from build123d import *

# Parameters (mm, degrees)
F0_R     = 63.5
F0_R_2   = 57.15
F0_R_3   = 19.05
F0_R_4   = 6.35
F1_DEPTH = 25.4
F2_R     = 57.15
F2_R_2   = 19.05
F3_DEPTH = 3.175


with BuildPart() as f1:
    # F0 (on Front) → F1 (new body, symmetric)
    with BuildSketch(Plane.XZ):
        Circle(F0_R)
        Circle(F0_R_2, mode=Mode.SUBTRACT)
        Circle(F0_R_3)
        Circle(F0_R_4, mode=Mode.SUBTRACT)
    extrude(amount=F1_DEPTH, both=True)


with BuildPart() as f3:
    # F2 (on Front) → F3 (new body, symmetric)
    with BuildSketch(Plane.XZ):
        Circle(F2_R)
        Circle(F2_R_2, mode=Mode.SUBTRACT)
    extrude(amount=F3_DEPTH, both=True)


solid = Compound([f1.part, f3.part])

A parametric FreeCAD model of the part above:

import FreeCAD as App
import Part
import Sketcher
from FreeCAD import Vector
Q = App.Units.Quantity

doc = App.newDocument("Part")
body = doc.addObject("PartDesign::Body", "Body")
body.AllowCompound = True

sketch1 = body.newObject("Sketcher::SketchObject", "Sketch")
sketch1.AttachmentSupport = (doc.getObject("XZ_Plane"), [""])
sketch1.MapMode = "FlatFace"
sketch1.addGeometry([
    Part.Circle(Vector(0, 0, 0), Vector(0, 0, 1), 64),
    Part.Circle(Vector(0, 0, 0), Vector(0, 0, 1), 57),
    Part.Circle(Vector(0, 0, 0), Vector(0, 0, 1), 19),
    Part.Circle(Vector(0, 0, 0), Vector(0, 0, 1), 6),
], False)
sketch1.addConstraint([
    Sketcher.Constraint("Coincident", 0, 3, -1, 1),
    Sketcher.Constraint("Coincident", 1, 3, -1, 1),
    Sketcher.Constraint("Coincident", 2, 3, -1, 1),
    Sketcher.Constraint("Coincident", 3, 3, -1, 1),
    Sketcher.Constraint("Diameter", 0, Q("5 in")),
    Sketcher.Constraint("Diameter", 1, Q("4.5 in")),
    Sketcher.Constraint("Diameter", 2, Q("1.5 in")),
    Sketcher.Constraint("Diameter", 3, Q("0.5 in")),
])
pad1 = body.newObject("PartDesign::Pad", "Pad")
pad1.Profile = sketch1
pad1.Length = Q("2 in")
pad1.Midplane = True
body2 = doc.addObject("PartDesign::Body", "Body001")

sketch2 = body2.newObject("Sketcher::SketchObject", "Sketch001")
sketch2.AttachmentSupport = (doc.getObject("XZ_Plane001"), [""])
sketch2.MapMode = "FlatFace"
sketch2.addGeometry([
    Part.Circle(Vector(0, 0, 0), Vector(0, 0, 1), 57),
    Part.Circle(Vector(0, 0, 0), Vector(0, 0, 1), 19),
], False)
sketch2.addConstraint([
    Sketcher.Constraint("Coincident", 0, 3, -1, 1),
    Sketcher.Constraint("Coincident", 1, 3, -1, 1),
    Sketcher.Constraint("Diameter", 0, Q("4.5 in")),
    Sketcher.Constraint("Diameter", 1, Q("1.5 in")),
])
pad2 = body2.newObject("PartDesign::Pad", "Pad001")
pad2.Profile = sketch2
pad2.Length = Q("0.25 in")
pad2.Midplane = True

doc.recompute()
